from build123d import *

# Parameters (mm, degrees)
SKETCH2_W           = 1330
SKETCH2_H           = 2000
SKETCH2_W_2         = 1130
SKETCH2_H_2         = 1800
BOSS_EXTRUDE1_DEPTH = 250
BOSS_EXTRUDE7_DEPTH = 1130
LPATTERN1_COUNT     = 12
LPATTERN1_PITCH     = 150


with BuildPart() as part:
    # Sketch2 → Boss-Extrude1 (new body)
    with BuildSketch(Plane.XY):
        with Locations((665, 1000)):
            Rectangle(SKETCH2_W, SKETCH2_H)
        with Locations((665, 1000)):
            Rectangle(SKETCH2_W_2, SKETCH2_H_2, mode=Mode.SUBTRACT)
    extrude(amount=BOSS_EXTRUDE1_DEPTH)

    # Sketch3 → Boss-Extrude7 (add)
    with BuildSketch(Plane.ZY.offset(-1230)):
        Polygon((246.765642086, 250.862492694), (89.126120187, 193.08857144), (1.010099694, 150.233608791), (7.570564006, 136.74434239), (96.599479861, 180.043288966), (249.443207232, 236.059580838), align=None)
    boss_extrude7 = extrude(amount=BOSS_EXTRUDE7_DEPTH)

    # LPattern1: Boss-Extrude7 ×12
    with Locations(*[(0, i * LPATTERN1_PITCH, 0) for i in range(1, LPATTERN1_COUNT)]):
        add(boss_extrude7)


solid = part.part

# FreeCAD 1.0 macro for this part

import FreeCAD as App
import Part
import Sketcher

doc = App.newDocument("Part")
body = doc.addObject("PartDesign::Body", "Body")

# Sketch on XY plane
sketch1 = doc.addObject("Sketcher::SketchObject", "Sketch")
body.addObject(sketch1)
sketch1.AttachmentSupport = (doc.XY_Plane, [""])
sketch1.MapMode = "FlatFace"
sketch1.addGeometry([
    Part.LineSegment(App.Vector(0, 2000, 0), App.Vector(0, 0, 0)),  # 0
    Part.LineSegment(App.Vector(0, 0, 0), App.Vector(1330, 0, 0)),  # 1
    Part.LineSegment(App.Vector(1330, 0, 0), App.Vector(1330, 2000, 0)),  # 2
    Part.LineSegment(App.Vector(1330, 2000, 0), App.Vector(0, 2000, 0)),  # 3
    Part.LineSegment(App.Vector(1230, 100, 0), App.Vector(100, 100, 0)),  # 4
    Part.LineSegment(App.Vector(100, 100, 0), App.Vector(100, 1900, 0)),  # 5
    Part.LineSegment(App.Vector(100, 1900, 0), App.Vector(1230, 1900, 0)),  # 6
    Part.LineSegment(App.Vector(1230, 1900, 0), App.Vector(1230, 100, 0)),  # 7
], False)
sketch1.addConstraint([
    Sketcher.Constraint("Coincident", 0, 2, 1, 1),
    Sketcher.Constraint("Coincident", 1, 2, 2, 1),
    Sketcher.Constraint("Coincident", 2, 2, 3, 1),
    Sketcher.Constraint("Coincident", 3, 2, 0, 1),
    Sketcher.Constraint("Coincident", 4, 2, 5, 1),
    Sketcher.Constraint("Coincident", 5, 2, 6, 1),
    Sketcher.Constraint("Coincident", 6, 2, 7, 1),
    Sketcher.Constraint("Coincident", 7, 2, 4, 1),
    Sketcher.Constraint("Vertical", 0),
    Sketcher.Constraint("Horizontal", 1),
    Sketcher.Constraint("Vertical", 2),
    Sketcher.Constraint("Horizontal", 3),
    Sketcher.Constraint("Horizontal", 4),
    Sketcher.Constraint("Vertical", 5),
    Sketcher.Constraint("Horizontal", 6),
    Sketcher.Constraint("Vertical", 7),
    Sketcher.Constraint("Coincident", 0, 2, -1, 1),
    Sketcher.Constraint("DistanceX", 1, 1, 1, 2, 1330.0),
    Sketcher.Constraint("DistanceX", 4, 2, 4, 1, 1130.0),
    Sketcher.Constraint("DistanceY", 0, 2, 0, 1, 2000.0),
    Sketcher.Constraint("DistanceY", 5, 1, 5, 2, 1800.0),
    Sketcher.Constraint("DistanceX", -1, 1, 4, 2, 100.0),
    Sketcher.Constraint("DistanceY", -1, 1, 4, 2, 100.0),
])
pad1 = doc.addObject("PartDesign::Pad", "Pad")
body.addObject(pad1)
pad1.Profile = sketch1
pad1.Length = 250

# Sketch on YZ plane
sketch2 = doc.addObject("Sketcher::SketchObject", "Sketch001")
body.addObject(sketch2)
sketch2.AttachmentSupport = (doc.YZ_Plane, [""])
sketch2.MapMode = "FlatFace"
sketch2.AttachmentOffset = App.Placement(App.Vector(0, 0, 1230), App.Rotation())
sketch2.addGeometry([
    Part.LineSegment(App.Vector(250.862493, 246.765642, 0), App.Vector(193.088571, 89.12612, 0)),  # 0
    Part.LineSegment(App.Vector(193.088571, 89.12612, 0), App.Vector(150.233609, 1.0101, 0)),  # 1
    Part.LineSegment(App.Vector(150.233609, 1.0101, 0), App.Vector(136.744342, 7.570564, 0)),  # 2
    Part.LineSegment(App.Vector(136.744342, 7.570564, 0), App.Vector(180.043289, 96.59948, 0)),  # 3
    Part.LineSegment(App.Vector(180.043289, 96.59948, 0), App.Vector(236.059581, 249.443207, 0)),  # 4
    Part.LineSegment(App.Vector(236.059581, 249.443207, 0), App.Vector(250.862493, 246.765642, 0)),  # 5
], False)
sketch2.addConstraint([
    Sketcher.Constraint("Coincident", 0, 2, 1, 1),
    Sketcher.Constraint("Coincident", 1, 2, 2, 1),
    Sketcher.Constraint("Coincident", 2, 2, 3, 1),
    Sketcher.Constraint("Coincident", 3, 2, 4, 1),
    Sketcher.Constraint("Coincident", 4, 2, 5, 1),
    Sketcher.Constraint("Coincident", 5, 2, 0, 1),
    Sketcher.Constraint("Perpendicular", 1, 2),
    Sketcher.Constraint("Perpendicular", 2, 3),
    Sketcher.Constraint("Parallel", 0, 4),
    Sketcher.Constraint("Distance", 2, 15.0),
    Sketcher.Constraint("DistanceY", -1, 1, 1, 2, 1.0101),
    Sketcher.Constraint("Distance", 3, 98.99973),
    Sketcher.Constraint("DistanceX", -1, 1, 0, 2, 193.088571),
    Sketcher.Constraint("DistanceY", -1, 1, 0, 2, 89.12612),
    Sketcher.Constraint("DistanceX", -1, 1, 1, 2, 150.233609),
    Sketcher.Constraint("DistanceX", -1, 1, 4, 2, 236.059581),
    Sketcher.Constraint("DistanceX", 4, 2, 5, 2, 14.802912),
    Sketcher.Constraint("DistanceY", 0, 2, 5, 2, 157.639522),
])
pad2 = doc.addObject("PartDesign::Pad", "Pad001")
body.addObject(pad2)
pad2.Profile = sketch2
pad2.Length = 1130
pad2.Reversed = True
doc.recompute()

linearpattern = doc.addObject("PartDesign::LinearPattern", "LinearPattern")
body.addObject(linearpattern)
linearpattern.Originals = [pad2]
linearpattern.Direction = (doc.Y_Axis, [""])
linearpattern.Mode = "offset"
linearpattern.Offset = 150
linearpattern.Occurrences = 12
body.Tip = linearpattern

doc.recompute()
